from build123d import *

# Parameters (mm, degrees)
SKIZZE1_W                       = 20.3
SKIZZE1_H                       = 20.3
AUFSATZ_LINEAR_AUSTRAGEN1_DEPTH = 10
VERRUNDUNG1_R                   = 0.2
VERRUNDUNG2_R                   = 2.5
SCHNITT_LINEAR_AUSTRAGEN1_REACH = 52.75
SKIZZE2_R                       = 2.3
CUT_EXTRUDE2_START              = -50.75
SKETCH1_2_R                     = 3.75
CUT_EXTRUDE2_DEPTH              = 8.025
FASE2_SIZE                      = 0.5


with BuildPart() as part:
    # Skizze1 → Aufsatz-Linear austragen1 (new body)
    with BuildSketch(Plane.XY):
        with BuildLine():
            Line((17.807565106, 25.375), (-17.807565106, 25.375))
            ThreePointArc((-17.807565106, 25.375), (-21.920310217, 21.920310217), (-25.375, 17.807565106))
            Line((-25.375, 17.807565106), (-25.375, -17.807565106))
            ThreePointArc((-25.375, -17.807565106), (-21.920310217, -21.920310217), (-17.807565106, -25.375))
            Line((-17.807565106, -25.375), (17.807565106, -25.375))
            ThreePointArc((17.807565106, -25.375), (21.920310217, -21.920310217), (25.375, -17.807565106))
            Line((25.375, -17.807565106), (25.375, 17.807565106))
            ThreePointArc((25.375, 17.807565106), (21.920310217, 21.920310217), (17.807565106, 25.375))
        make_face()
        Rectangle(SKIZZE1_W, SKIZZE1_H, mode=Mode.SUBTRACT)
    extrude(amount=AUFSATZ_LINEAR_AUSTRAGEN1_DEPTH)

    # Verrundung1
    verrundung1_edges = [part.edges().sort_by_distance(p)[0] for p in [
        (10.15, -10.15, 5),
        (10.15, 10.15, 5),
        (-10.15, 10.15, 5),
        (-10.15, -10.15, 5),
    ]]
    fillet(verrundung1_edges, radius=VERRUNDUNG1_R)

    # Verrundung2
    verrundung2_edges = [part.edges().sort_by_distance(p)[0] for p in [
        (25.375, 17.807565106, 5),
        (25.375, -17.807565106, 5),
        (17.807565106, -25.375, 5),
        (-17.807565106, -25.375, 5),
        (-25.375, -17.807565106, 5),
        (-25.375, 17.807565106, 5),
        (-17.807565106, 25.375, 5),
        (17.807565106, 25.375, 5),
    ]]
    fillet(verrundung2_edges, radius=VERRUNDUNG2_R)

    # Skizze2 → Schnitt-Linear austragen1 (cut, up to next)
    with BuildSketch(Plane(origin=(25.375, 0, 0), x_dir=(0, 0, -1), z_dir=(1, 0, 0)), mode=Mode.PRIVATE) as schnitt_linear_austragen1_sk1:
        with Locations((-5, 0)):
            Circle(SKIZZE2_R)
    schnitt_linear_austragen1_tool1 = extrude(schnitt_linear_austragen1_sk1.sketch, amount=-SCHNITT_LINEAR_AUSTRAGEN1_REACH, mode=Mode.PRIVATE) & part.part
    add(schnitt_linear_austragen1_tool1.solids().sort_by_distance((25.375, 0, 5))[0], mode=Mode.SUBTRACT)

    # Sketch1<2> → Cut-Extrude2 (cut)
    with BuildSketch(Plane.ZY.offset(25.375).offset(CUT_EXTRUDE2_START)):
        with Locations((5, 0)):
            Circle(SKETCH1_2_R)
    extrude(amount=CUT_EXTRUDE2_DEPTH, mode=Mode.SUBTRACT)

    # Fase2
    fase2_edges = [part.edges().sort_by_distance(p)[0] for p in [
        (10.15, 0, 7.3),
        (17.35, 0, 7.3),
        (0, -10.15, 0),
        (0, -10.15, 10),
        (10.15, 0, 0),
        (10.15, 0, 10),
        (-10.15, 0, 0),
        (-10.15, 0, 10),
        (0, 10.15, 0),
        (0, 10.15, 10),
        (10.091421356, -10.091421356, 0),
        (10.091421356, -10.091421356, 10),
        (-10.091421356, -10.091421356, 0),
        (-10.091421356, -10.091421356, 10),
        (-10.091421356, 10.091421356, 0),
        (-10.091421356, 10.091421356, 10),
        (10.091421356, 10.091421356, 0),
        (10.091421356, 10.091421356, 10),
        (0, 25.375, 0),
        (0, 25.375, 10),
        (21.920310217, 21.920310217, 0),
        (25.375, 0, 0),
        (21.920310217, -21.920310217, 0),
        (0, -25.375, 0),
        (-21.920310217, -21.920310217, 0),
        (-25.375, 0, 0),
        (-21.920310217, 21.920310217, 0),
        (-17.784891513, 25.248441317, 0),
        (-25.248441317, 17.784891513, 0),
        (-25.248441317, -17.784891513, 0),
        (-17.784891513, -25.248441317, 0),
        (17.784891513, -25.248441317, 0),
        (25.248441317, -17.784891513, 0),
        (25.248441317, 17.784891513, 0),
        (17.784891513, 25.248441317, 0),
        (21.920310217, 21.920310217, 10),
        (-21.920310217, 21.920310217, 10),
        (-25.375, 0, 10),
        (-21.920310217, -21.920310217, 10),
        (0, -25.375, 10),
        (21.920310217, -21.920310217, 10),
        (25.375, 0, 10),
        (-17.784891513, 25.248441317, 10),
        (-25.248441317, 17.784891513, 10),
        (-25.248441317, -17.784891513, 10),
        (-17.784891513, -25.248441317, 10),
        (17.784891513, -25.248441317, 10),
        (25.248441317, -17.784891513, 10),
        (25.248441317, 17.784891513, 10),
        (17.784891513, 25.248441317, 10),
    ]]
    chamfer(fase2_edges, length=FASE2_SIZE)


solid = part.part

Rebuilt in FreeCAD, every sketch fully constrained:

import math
import FreeCAD as App
import Part
import Sketcher

V = App.Vector
Q = App.Units.Quantity


def edges_at(feature, points):
    """Names of the edges that pass closest to the given points."""
    edges = feature.Shape.Edges
    near = lambda p: min(range(len(edges)), key=lambda i: edges[i].distToShape(Part.Vertex(*p))[0])
    return sorted({f"Edge{near(p) + 1}" for p in points})

doc = App.newDocument("Part")
body = doc.addObject("PartDesign::Body", "Body")

sketch1 = body.newObject("Sketcher::SketchObject", "Sketch")
sketch1.AttachmentSupport = (doc.getObject("XY_Plane"), [""])
sketch1.MapMode = "FlatFace"
sketch1.addGeometry([
    Part.LineSegment(V(18, 25, 0), V(-18, 25, 0)),
    Part.ArcOfCircle(Part.Circle(V(0, 0, 0), V(0, 0, 1), 31), math.radians(125.06), math.radians(144.94)),
    Part.LineSegment(V(-25, 18, 0), V(-25, -18, 0)),
    Part.ArcOfCircle(Part.Circle(V(0, 0, 0), V(0, 0, 1), 31), math.radians(-144.94), math.radians(-125.06)),
    Part.LineSegment(V(-18, -25, 0), V(18, -25, 0)),
    Part.ArcOfCircle(Part.Circle(V(0, 0, 0), V(0, 0, 1), 31), math.radians(-54.94), math.radians(-35.06)),
    Part.LineSegment(V(25, -18, 0), V(25, 18, 0)),
    Part.ArcOfCircle(Part.Circle(V(0, 0, 0), V(0, 0, 1), 31), math.radians(35.06), math.radians(54.94)),
    Part.LineSegment(V(10, -10, 0), V(-10, -10, 0)),
    Part.LineSegment(V(-10, -10, 0), V(-10, 10, 0)),
    Part.LineSegment(V(-10, 10, 0), V(10, 10, 0)),
    Part.LineSegment(V(10, 10, 0), V(10, -10, 0)),
], False)
sketch1.addConstraint([
    Sketcher.Constraint("Coincident", 0, 2, 1, 1),
    Sketcher.Constraint("Coincident", 1, 2, 2, 1),
    Sketcher.Constraint("Coincident", 2, 2, 3, 1),
    Sketcher.Constraint("Coincident", 3, 2, 4, 1),
    Sketcher.Constraint("Coincident", 4, 2, 5, 1),
    Sketcher.Constraint("Coincident", 5, 2, 6, 1),
    Sketcher.Constraint("Coincident", 6, 2, 7, 1),
    Sketcher.Constraint("Coincident", 7, 2, 0, 1),
    Sketcher.Constraint("Coincident", 8, 2, 9, 1),
    Sketcher.Constraint("Coincident", 9, 2, 10, 1),
    Sketcher.Constraint("Coincident", 10, 2, 11, 1),
    Sketcher.Constraint("Coincident", 11, 2, 8, 1),
    Sketcher.Constraint("Horizontal", 0),
    Sketcher.Constraint("Vertical", 2),
    Sketcher.Constraint("Horizontal", 4),
    Sketcher.Constraint("Vertical", 6),
    Sketcher.Constraint("Horizontal", 8),
    Sketcher.Constraint("Vertical", 9),
    Sketcher.Constraint("Horizontal", 10),
    Sketcher.Constraint("Vertical", 11),
    Sketcher.Constraint("Coincident", 1, 3, -1, 1),
    Sketcher.Constraint("Coincident", 3, 3, -1, 1),
    Sketcher.Constraint("Coincident", 5, 3, -1, 1),
    Sketcher.Constraint("Coincident", 7, 3, -1, 1),
    Sketcher.Constraint("Equal", 1, 3),
    Sketcher.Constraint("Equal", 3, 5),
    Sketcher.Constraint("Equal", 5, 7),
    Sketcher.Constraint("Symmetric", 8, 2, 10, 2, -1, 1),
    Sketcher.Constraint("Horizontal", 2, 2, 5, 2),
    Sketcher.Constraint("Vertical", 0, 2, 3, 2),
    Sketcher.Constraint("Equal", 4, 2),
    Sketcher.Constraint("Equal", 10, 9),
    Sketcher.Constraint("Radius", 1, Q("31 mm")),
    Sketcher.Constraint("DistanceX", 8, 2, 8, 1, Q("20.3 mm")),
    Sketcher.Constraint("DistanceY", -1, 1, 0, 2, Q("25.375 mm")),
])
pad1 = body.newObject("PartDesign::Pad", "Pad")
pad1.Profile = sketch1
pad1.Length = 10
doc.recompute()

fillet = body.newObject("PartDesign::Fillet", "Fillet")
fillet.Base = (pad1, edges_at(pad1, [
    (10.15, -10.15, 5),
    (10.15, 10.15, 5),
    (-10.15, 10.15, 5),
    (-10.15, -10.15, 5),
]))
fillet.Radius = 0.2
doc.recompute()

fillet2 = body.newObject("PartDesign::Fillet", "Fillet001")
fillet2.Base = (fillet, edges_at(fillet, [
    (25.375, 17.808, 5),
    (25.375, -17.808, 5),
    (17.808, -25.375, 5),
    (-17.808, -25.375, 5),
    (-25.375, -17.808, 5),
    (-25.375, 17.808, 5),
    (-17.808, 25.375, 5),
    (17.808, 25.375, 5),
]))
fillet2.Radius = 2.5

sketch2 = body.newObject("Sketcher::SketchObject", "Sketch001")
sketch2.AttachmentSupport = (doc.getObject("YZ_Plane"), [""])
sketch2.MapMode = "FlatFace"
sketch2.AttachmentOffset = App.Placement(V(0, 0, 25.375), App.Rotation())
sketch2.addGeometry(Part.Circle(V(0, 5, 0), V(0, 0, 1), 2.3), False)
sketch2.addConstraint([
    Sketcher.Constraint("PointOnObject", 0, 3, -2),
    Sketcher.Constraint("Diameter", 0, Q("4.6 mm")),
    Sketcher.Constraint("DistanceY", -1, 1, 0, 3, Q("5 mm")),
])
pocket1 = body.newObject("PartDesign::Pocket", "Pocket")
pocket1.Profile = sketch2
pocket1.Type = "UpToFirst"

sketch3 = body.newObject("Sketcher::SketchObject", "Sketch002")
sketch3.AttachmentSupport = (doc.getObject("YZ_Plane"), [""])
sketch3.MapMode = "FlatFace"
sketch3.AttachmentOffset = App.Placement(V(0, 0, 25.375), App.Rotation())
sketch3.addGeometry(Part.Circle(V(0, 5, 0), V(0, 0, 1), 3.8), False)
sketch3.addConstraint([
    Sketcher.Constraint("PointOnObject", 0, 3, -2),
    Sketcher.Constraint("Diameter", 0, Q("7.5 mm")),
    Sketcher.Constraint("DistanceY", -1, 1, 0, 3, Q("5 mm")),
])
pocket2 = body.newObject("PartDesign::Pocket", "Pocket001")
pocket2.Profile = sketch3
pocket2.Length = 8.025
doc.recompute()

chamfer = body.newObject("PartDesign::Chamfer", "Chamfer")
chamfer.Base = (pocket2, edges_at(pocket2, [
    (10.15, 0, 7.3),
    (17.35, 0, 7.3),
    (0, -10.15, 0),
    (0, -10.15, 10),
    (10.15, 0, 0),
    (10.15, 0, 10),
    (-10.15, 0, 0),
    (-10.15, 0, 10),
    (0, 10.15, 0),
    (0, 10.15, 10),
    (10.091, -10.091, 0),
    (10.091, -10.091, 10),
    (-10.091, -10.091, 0),
    (-10.091, -10.091, 10),
    (-10.091, 10.091, 0),
    (-10.091, 10.091, 10),
    (10.091, 10.091, 0),
    (10.091, 10.091, 10),
    (0, 25.375, 0),
    (0, 25.375, 10),
    (21.92, 21.92, 0),
    (25.375, 0, 0),
    (21.92, -21.92, 0),
    (0, -25.375, 0),
    (-21.92, -21.92, 0),
    (-25.375, 0, 0),
    (-21.92, 21.92, 0),
    (-17.785, 25.248, 0),
    (-25.248, 17.785, 0),
    (-25.248, -17.785, 0),
    (-17.785, -25.248, 0),
    (17.785, -25.248, 0),
    (25.248, -17.785, 0),
    (25.248, 17.785, 0),
    (17.785, 25.248, 0),
    (21.92, 21.92, 10),
    (-21.92, 21.92, 10),
    (-25.375, 0, 10),
    (-21.92, -21.92, 10),
    (0, -25.375, 10),
    (21.92, -21.92, 10),
    (25.375, 0, 10),
    (-17.785, 25.248, 10),
    (-25.248, 17.785, 10),
    (-25.248, -17.785, 10),
    (-17.785, -25.248, 10),
    (17.785, -25.248, 10),
    (25.248, -17.785, 10),
    (25.248, 17.785, 10),
    (17.785, 25.248, 10),
]))
chamfer.Size = 0.5

doc.recompute()
